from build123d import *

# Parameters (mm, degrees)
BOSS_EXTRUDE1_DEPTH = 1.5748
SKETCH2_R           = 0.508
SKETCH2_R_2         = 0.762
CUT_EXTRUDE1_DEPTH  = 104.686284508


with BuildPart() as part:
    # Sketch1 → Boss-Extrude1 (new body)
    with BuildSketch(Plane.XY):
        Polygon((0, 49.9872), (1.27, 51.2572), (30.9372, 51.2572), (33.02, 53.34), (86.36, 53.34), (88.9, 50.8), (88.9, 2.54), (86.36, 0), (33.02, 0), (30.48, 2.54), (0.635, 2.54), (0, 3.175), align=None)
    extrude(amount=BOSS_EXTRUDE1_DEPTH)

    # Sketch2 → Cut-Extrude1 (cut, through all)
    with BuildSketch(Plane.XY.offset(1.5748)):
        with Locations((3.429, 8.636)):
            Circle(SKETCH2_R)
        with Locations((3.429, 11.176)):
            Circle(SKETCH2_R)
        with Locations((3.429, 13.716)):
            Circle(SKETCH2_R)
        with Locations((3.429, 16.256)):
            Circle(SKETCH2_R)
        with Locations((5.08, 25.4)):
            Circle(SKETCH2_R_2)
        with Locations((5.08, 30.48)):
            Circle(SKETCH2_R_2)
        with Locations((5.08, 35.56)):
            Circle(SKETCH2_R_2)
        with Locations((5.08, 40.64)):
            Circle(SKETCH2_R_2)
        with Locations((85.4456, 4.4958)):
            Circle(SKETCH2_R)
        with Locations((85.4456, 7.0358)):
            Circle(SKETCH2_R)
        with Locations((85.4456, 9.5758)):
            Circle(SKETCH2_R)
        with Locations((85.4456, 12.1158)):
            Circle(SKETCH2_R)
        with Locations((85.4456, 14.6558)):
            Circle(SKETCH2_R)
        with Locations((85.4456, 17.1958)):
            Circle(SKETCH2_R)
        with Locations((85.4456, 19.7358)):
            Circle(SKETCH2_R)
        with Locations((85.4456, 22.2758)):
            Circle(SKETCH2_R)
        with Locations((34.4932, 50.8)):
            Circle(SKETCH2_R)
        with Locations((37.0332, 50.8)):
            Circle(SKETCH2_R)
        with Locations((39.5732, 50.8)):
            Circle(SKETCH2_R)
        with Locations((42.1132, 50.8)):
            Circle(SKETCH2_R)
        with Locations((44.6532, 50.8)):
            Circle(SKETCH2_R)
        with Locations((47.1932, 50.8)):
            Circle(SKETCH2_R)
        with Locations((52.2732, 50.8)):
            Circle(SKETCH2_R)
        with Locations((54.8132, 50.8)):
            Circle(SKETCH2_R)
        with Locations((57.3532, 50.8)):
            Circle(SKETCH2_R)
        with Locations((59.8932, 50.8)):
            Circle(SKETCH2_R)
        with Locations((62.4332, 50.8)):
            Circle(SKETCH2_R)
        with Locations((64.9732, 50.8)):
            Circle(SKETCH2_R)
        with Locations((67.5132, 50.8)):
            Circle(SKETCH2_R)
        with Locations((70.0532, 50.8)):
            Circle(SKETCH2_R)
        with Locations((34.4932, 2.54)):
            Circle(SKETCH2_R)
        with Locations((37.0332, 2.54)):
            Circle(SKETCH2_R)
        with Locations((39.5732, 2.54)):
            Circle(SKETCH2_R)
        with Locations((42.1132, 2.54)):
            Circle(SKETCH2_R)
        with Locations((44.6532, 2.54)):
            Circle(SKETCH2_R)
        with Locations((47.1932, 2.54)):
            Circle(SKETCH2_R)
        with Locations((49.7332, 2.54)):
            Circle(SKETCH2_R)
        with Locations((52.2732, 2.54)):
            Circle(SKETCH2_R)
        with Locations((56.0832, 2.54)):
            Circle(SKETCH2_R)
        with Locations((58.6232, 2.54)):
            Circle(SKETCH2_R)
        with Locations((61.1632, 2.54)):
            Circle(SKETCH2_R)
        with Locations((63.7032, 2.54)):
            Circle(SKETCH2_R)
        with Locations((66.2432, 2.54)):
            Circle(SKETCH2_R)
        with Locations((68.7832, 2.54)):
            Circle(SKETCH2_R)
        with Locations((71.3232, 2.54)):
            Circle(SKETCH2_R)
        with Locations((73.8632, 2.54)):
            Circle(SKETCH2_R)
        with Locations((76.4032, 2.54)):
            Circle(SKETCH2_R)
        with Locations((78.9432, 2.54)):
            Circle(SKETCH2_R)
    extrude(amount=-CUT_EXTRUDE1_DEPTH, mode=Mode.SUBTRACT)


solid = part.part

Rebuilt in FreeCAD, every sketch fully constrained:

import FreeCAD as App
import Part
import Sketcher
from FreeCAD import Vector
Q = App.Units.Quantity


def add_polygon(sketch, points):
    """Adds a closed chain of lines whose ends are joined by coincident constraints."""
    first, n = sketch.GeometryCount, len(points)
    for a, b in zip(points, points[1:] + points[:1]):
        sketch.addGeometry(Part.LineSegment(App.Vector(*a, 0), App.Vector(*b, 0)), False)
    for i in range(n):
        sketch.addConstraint(Sketcher.Constraint("Coincident", first + i, 2, first + (i + 1) % n, 1))

doc = App.newDocument("Part")
body = doc.addObject("PartDesign::Body", "Body")

# Sketch on XY plane
sketch1 = body.newObject("Sketcher::SketchObject", "Sketch")
sketch1.AttachmentSupport = (doc.getObject("XY_Plane"), [""])
sketch1.MapMode = "FlatFace"
add_polygon(sketch1, [(1.3, 51.3), (0, 50), (0, 3.2), (0.6, 2.5), (30.5, 2.5), (33, 0), (86.4, 0), (88.9, 2.5), (88.9, 50.8), (86.4, 53.3), (33, 53.3), (30.9, 51.3)])  # lines 0-11
sketch1.addConstraint(Sketcher.Constraint("Vertical", 1))
sketch1.addConstraint(Sketcher.Constraint("Horizontal", 3))
sketch1.addConstraint(Sketcher.Constraint("Horizontal", 5))
sketch1.addConstraint(Sketcher.Constraint("Vertical", 7))
sketch1.addConstraint(Sketcher.Constraint("Horizontal", 9))
sketch1.addConstraint(Sketcher.Constraint("Horizontal", 11))
sketch1.addConstraint(Sketcher.Constraint("PointOnObject", 0, 2, -2))
sketch1.addConstraint(Sketcher.Constraint("PointOnObject", 4, 2, -1))
sketch1.addConstraint(Sketcher.Constraint("Perpendicular", 0, 2))
sketch1.addConstraint(Sketcher.Constraint("Parallel", 2, 4))
sketch1.addConstraint(Sketcher.Constraint("Perpendicular", 4, 6))
sketch1.addConstraint(Sketcher.Constraint("Perpendicular", 6, 8))
sketch1.addConstraint(Sketcher.Constraint("Perpendicular", 8, 10))
sketch1.addConstraint(Sketcher.Constraint("Horizontal", 3, 2, 6, 2))
sketch1.addConstraint(Sketcher.Constraint("Vertical", 5, 2, 8, 2))
sketch1.addConstraint(Sketcher.Constraint("Vertical", 4, 2, 9, 2))
sketch1.addConstraint(Sketcher.Constraint("Equal", 4, 6))
sketch1.addConstraint(Sketcher.Constraint("DistanceX", 5, 1, 5, 2, Q("2.1 in")))
sketch1.addConstraint(Sketcher.Constraint("DistanceY", 7, 1, 7, 2, Q("1.9 in")))
sketch1.addConstraint(Sketcher.Constraint("DistanceY", -1, 1, 7, 2, Q("2 in")))
sketch1.addConstraint(Sketcher.Constraint("DistanceX", -1, 1, 3, 2, Q("1.2 in")))
sketch1.addConstraint(Sketcher.Constraint("DistanceX", 3, 1, 3, 2, Q("1.175 in")))
sketch1.addConstraint(Sketcher.Constraint("DistanceX", 11, 2, 11, 1, Q("1.168 in")))
sketch1.addConstraint(Sketcher.Constraint("DistanceX", -1, 1, 11, 2, Q("0.05 in")))
pad1 = body.newObject("PartDesign::Pad", "Pad")
pad1.Profile = sketch1
pad1.Length = Q("0.062 in")

# Sketch on XY plane
sketch2 = body.newObject("Sketcher::SketchObject", "Sketch001")
sketch2.AttachmentSupport = (doc.getObject("XY_Plane"), [""])
sketch2.MapMode = "FlatFace"
sketch2.AttachmentOffset = App.Placement(Vector(0, 0, 0.062 * 25.4), App.Rotation())
sketch2.addGeometry(Part.Circle(Vector(3.4, 8.6, 0), Vector(0, 0, 1), 0.5), False)
sketch2.addGeometry(Part.Circle(Vector(3.4, 11.2, 0), Vector(0, 0, 1), 0.5), False)
sketch2.addGeometry(Part.Circle(Vector(3.4, 13.7, 0), Vector(0, 0, 1), 0.5), False)
sketch2.addGeometry(Part.Circle(Vector(3.4, 16.3, 0), Vector(0, 0, 1), 0.5), False)
sketch2.addGeometry(Part.Circle(Vector(5.1, 25.4, 0), Vector(0, 0, 1), 0.8), False)
sketch2.addGeometry(Part.Circle(Vector(5.1, 30.5, 0), Vector(0, 0, 1), 0.8), False)
sketch2.addGeometry(Part.Circle(Vector(5.1, 35.6, 0), Vector(0, 0, 1), 0.8), False)
sketch2.addGeometry(Part.Circle(Vector(5.1, 40.6, 0), Vector(0, 0, 1), 0.8), False)
sketch2.addGeometry(Part.Circle(Vector(85.4, 4.5, 0), Vector(0, 0, 1), 0.5), False)
sketch2.addGeometry(Part.Circle(Vector(85.4, 7, 0), Vector(0, 0, 1), 0.5), False)
sketch2.addGeometry(Part.Circle(Vector(85.4, 9.6, 0), Vector(0, 0, 1), 0.5), False)
sketch2.addGeometry(Part.Circle(Vector(85.4, 12.1, 0), Vector(0, 0, 1), 0.5), False)
sketch2.addGeometry(Part.Circle(Vector(85.4, 14.7, 0), Vector(0, 0, 1), 0.5), False)
sketch2.addGeometry(Part.Circle(Vector(85.4, 17.2, 0), Vector(0, 0, 1), 0.5), False)
sketch2.addGeometry(Part.Circle(Vector(85.4, 19.7, 0), Vector(0, 0, 1), 0.5), False)
sketch2.addGeometry(Part.Circle(Vector(85.4, 22.3, 0), Vector(0, 0, 1), 0.5), False)
sketch2.addGeometry(Part.Circle(Vector(34.5, 50.8, 0), Vector(0, 0, 1), 0.5), False)
sketch2.addGeometry(Part.Circle(Vector(37, 50.8, 0), Vector(0, 0, 1), 0.5), False)
sketch2.addGeometry(Part.Circle(Vector(39.6, 50.8, 0), Vector(0, 0, 1), 0.5), False)
sketch2.addGeometry(Part.Circle(Vector(42.1, 50.8, 0), Vector(0, 0, 1), 0.5), False)
sketch2.addGeometry(Part.Circle(Vector(44.7, 50.8, 0), Vector(0, 0, 1), 0.5), False)
sketch2.addGeometry(Part.Circle(Vector(47.2, 50.8, 0), Vector(0, 0, 1), 0.5), False)
sketch2.addGeometry(Part.Circle(Vector(52.3, 50.8, 0), Vector(0, 0, 1), 0.5), False)
sketch2.addGeometry(Part.Circle(Vector(54.8, 50.8, 0), Vector(0, 0, 1), 0.5), False)
sketch2.addGeometry(Part.Circle(Vector(57.4, 50.8, 0), Vector(0, 0, 1), 0.5), False)
sketch2.addGeometry(Part.Circle(Vector(59.9, 50.8, 0), Vector(0, 0, 1), 0.5), False)
sketch2.addGeometry(Part.Circle(Vector(62.4, 50.8, 0), Vector(0, 0, 1), 0.5), False)
sketch2.addGeometry(Part.Circle(Vector(65, 50.8, 0), Vector(0, 0, 1), 0.5), False)
sketch2.addGeometry(Part.Circle(Vector(67.5, 50.8, 0), Vector(0, 0, 1), 0.5), False)
sketch2.addGeometry(Part.Circle(Vector(70.1, 50.8, 0), Vector(0, 0, 1), 0.5), False)
sketch2.addGeometry(Part.Circle(Vector(34.5, 2.5, 0), Vector(0, 0, 1), 0.5), False)
sketch2.addGeometry(Part.Circle(Vector(37, 2.5, 0), Vector(0, 0, 1), 0.5), False)
sketch2.addGeometry(Part.Circle(Vector(39.6, 2.5, 0), Vector(0, 0, 1), 0.5), False)
sketch2.addGeometry(Part.Circle(Vector(42.1, 2.5, 0), Vector(0, 0, 1), 0.5), False)
sketch2.addGeometry(Part.Circle(Vector(44.7, 2.5, 0), Vector(0, 0, 1), 0.5), False)
sketch2.addGeometry(Part.Circle(Vector(47.2, 2.5, 0), Vector(0, 0, 1), 0.5), False)
sketch2.addGeometry(Part.Circle(Vector(49.7, 2.5, 0), Vector(0, 0, 1), 0.5), False)
sketch2.addGeometry(Part.Circle(Vector(52.3, 2.5, 0), Vector(0, 0, 1), 0.5), False)
sketch2.addGeometry(Part.Circle(Vector(56.1, 2.5, 0), Vector(0, 0, 1), 0.5), False)
sketch2.addGeometry(Part.Circle(Vector(58.6, 2.5, 0), Vector(0, 0, 1), 0.5), False)
sketch2.addGeometry(Part.Circle(Vector(61.2, 2.5, 0), Vector(0, 0, 1), 0.5), False)
sketch2.addGeometry(Part.Circle(Vector(63.7, 2.5, 0), Vector(0, 0, 1), 0.5), False)
sketch2.addGeometry(Part.Circle(Vector(66.2, 2.5, 0), Vector(0, 0, 1), 0.5), False)
sketch2.addGeometry(Part.Circle(Vector(68.8, 2.5, 0), Vector(0, 0, 1), 0.5), False)
sketch2.addGeometry(Part.Circle(Vector(71.3, 2.5, 0), Vector(0, 0, 1), 0.5), False)
sketch2.addGeometry(Part.Circle(Vector(73.9, 2.5, 0), Vector(0, 0, 1), 0.5), False)
sketch2.addGeometry(Part.Circle(Vector(76.4, 2.5, 0), Vector(0, 0, 1), 0.5), False)
sketch2.addGeometry(Part.Circle(Vector(78.9, 2.5, 0), Vector(0, 0, 1), 0.5), False)
sketch2.addConstraint(Sketcher.Constraint("Equal", 0, 1))
sketch2.addConstraint(Sketcher.Constraint("Equal", 1, 2))
sketch2.addConstraint(Sketcher.Constraint("Equal", 2, 3))
sketch2.addConstraint(Sketcher.Constraint("Equal", 4, 5))
sketch2.addConstraint(Sketcher.Constraint("Equal", 5, 6))
sketch2.addConstraint(Sketcher.Constraint("Equal", 6, 7))
sketch2.addConstraint(Sketcher.Constraint("Equal", 3, 8))
sketch2.addConstraint(Sketcher.Constraint("Equal", 8, 9))
sketch2.addConstraint(Sketcher.Constraint("Equal", 9, 10))
sketch2.addConstraint(Sketcher.Constraint("Equal", 10, 11))
sketch2.addConstraint(Sketcher.Constraint("Equal", 11, 12))
sketch2.addConstraint(Sketcher.Constraint("Equal", 12, 13))
sketch2.addConstraint(Sketcher.Constraint("Equal", 13, 14))
sketch2.addConstraint(Sketcher.Constraint("Equal", 14, 15))
sketch2.addConstraint(Sketcher.Constraint("Equal", 15, 16))
sketch2.addConstraint(Sketcher.Constraint("Equal", 16, 17))
sketch2.addConstraint(Sketcher.Constraint("Equal", 17, 18))
sketch2.addConstraint(Sketcher.Constraint("Equal", 18, 19))
sketch2.addConstraint(Sketcher.Constraint("Equal", 19, 20))
sketch2.addConstraint(Sketcher.Constraint("Equal", 20, 21))
sketch2.addConstraint(Sketcher.Constraint("Equal", 21, 22))
sketch2.addConstraint(Sketcher.Constraint("Equal", 22, 23))
sketch2.addConstraint(Sketcher.Constraint("Equal", 23, 24))
sketch2.addConstraint(Sketcher.Constraint("Equal", 24, 25))
sketch2.addConstraint(Sketcher.Constraint("Equal", 25, 26))
sketch2.addConstraint(Sketcher.Constraint("Equal", 26, 27))
sketch2.addConstraint(Sketcher.Constraint("Equal", 27, 28))
sketch2.addConstraint(Sketcher.Constraint("Equal", 28, 29))
sketch2.addConstraint(Sketcher.Constraint("Equal", 29, 30))
sketch2.addConstraint(Sketcher.Constraint("Equal", 30, 31))
sketch2.addConstraint(Sketcher.Constraint("Equal", 31, 32))
sketch2.addConstraint(Sketcher.Constraint("Equal", 32, 33))
sketch2.addConstraint(Sketcher.Constraint("Equal", 33, 34))
sketch2.addConstraint(Sketcher.Constraint("Equal", 34, 35))
sketch2.addConstraint(Sketcher.Constraint("Equal", 35, 36))
sketch2.addConstraint(Sketcher.Constraint("Equal", 36, 37))
sketch2.addConstraint(Sketcher.Constraint("Equal", 37, 38))
sketch2.addConstraint(Sketcher.Constraint("Equal", 38, 39))
sketch2.addConstraint(Sketcher.Constraint("Equal", 39, 40))
sketch2.addConstraint(Sketcher.Constraint("Equal", 40, 41))
sketch2.addConstraint(Sketcher.Constraint("Equal", 41, 42))
sketch2.addConstraint(Sketcher.Constraint("Equal", 42, 43))
sketch2.addConstraint(Sketcher.Constraint("Equal", 43, 44))
sketch2.addConstraint(Sketcher.Constraint("Equal", 44, 45))
sketch2.addConstraint(Sketcher.Constraint("Equal", 45, 46))
sketch2.addConstraint(Sketcher.Constraint("Equal", 46, 47))
sketch2.addConstraint(Sketcher.Constraint("Horizontal", 16, 3, 17, 3))
sketch2.addConstraint(Sketcher.Constraint("Horizontal", 17, 3, 18, 3))
sketch2.addConstraint(Sketcher.Constraint("Horizontal", 18, 3, 19, 3))
sketch2.addConstraint(Sketcher.Constraint("Horizontal", 19, 3, 20, 3))
sketch2.addConstraint(Sketcher.Constraint("Horizontal", 20, 3, 21, 3))
sketch2.addConstraint(Sketcher.Constraint("Horizontal", 21, 3, 22, 3))
sketch2.addConstraint(Sketcher.Constraint("Horizontal", 22, 3, 23, 3))
sketch2.addConstraint(Sketcher.Constraint("Horizontal", 23, 3, 24, 3))
sketch2.addConstraint(Sketcher.Constraint("Horizontal", 24, 3, 25, 3))
sketch2.addConstraint(Sketcher.Constraint("Horizontal", 25, 3, 26, 3))
sketch2.addConstraint(Sketcher.Constraint("Horizontal", 26, 3, 27, 3))
sketch2.addConstraint(Sketcher.Constraint("Horizontal", 27, 3, 28, 3))
sketch2.addConstraint(Sketcher.Constraint("Horizontal", 28, 3, 29, 3))
sketch2.addConstraint(Sketcher.Constraint("Horizontal", 30, 3, 31, 3))
sketch2.addConstraint(Sketcher.Constraint("Horizontal", 31, 3, 32, 3))
sketch2.addConstraint(Sketcher.Constraint("Horizontal", 32, 3, 33, 3))
sketch2.addConstraint(Sketcher.Constraint("Horizontal", 33, 3, 34, 3))
sketch2.addConstraint(Sketcher.Constraint("Horizontal", 34, 3, 35, 3))
sketch2.addConstraint(Sketcher.Constraint("Horizontal", 35, 3, 36, 3))
sketch2.addConstraint(Sketcher.Constraint("Horizontal", 36, 3, 37, 3))
sketch2.addConstraint(Sketcher.Constraint("Horizontal", 37, 3, 38, 3))
sketch2.addConstraint(Sketcher.Constraint("Horizontal", 38, 3, 39, 3))
sketch2.addConstraint(Sketcher.Constraint("Horizontal", 39, 3, 40, 3))
sketch2.addConstraint(Sketcher.Constraint("Horizontal", 40, 3, 41, 3))
sketch2.addConstraint(Sketcher.Constraint("Horizontal", 41, 3, 42, 3))
sketch2.addConstraint(Sketcher.Constraint("Horizontal", 42, 3, 43, 3))
sketch2.addConstraint(Sketcher.Constraint("Horizontal", 43, 3, 44, 3))
sketch2.addConstraint(Sketcher.Constraint("Horizontal", 44, 3, 45, 3))
sketch2.addConstraint(Sketcher.Constraint("Horizontal", 45, 3, 46, 3))
sketch2.addConstraint(Sketcher.Constraint("Horizontal", 46, 3, 47, 3))
sketch2.addConstraint(Sketcher.Constraint("Vertical", 0, 3, 1, 3))
sketch2.addConstraint(Sketcher.Constraint("Vertical", 1, 3, 2, 3))
sketch2.addConstraint(Sketcher.Constraint("Vertical", 2, 3, 3, 3))
sketch2.addConstraint(Sketcher.Constraint("Vertical", 4, 3, 5, 3))
sketch2.addConstraint(Sketcher.Constraint("Vertical", 5, 3, 6, 3))
sketch2.addConstraint(Sketcher.Constraint("Vertical", 6, 3, 7, 3))
sketch2.addConstraint(Sketcher.Constraint("Vertical", 8, 3, 9, 3))
sketch2.addConstraint(Sketcher.Constraint("Vertical", 9, 3, 10, 3))
sketch2.addConstraint(Sketcher.Constraint("Vertical", 10, 3, 11, 3))
sketch2.addConstraint(Sketcher.Constraint("Vertical", 11, 3, 12, 3))
sketch2.addConstraint(Sketcher.Constraint("Vertical", 12, 3, 13, 3))
sketch2.addConstraint(Sketcher.Constraint("Vertical", 13, 3, 14, 3))
sketch2.addConstraint(Sketcher.Constraint("Vertical", 14, 3, 15, 3))
sketch2.addConstraint(Sketcher.Constraint("Vertical", 16, 3, 30, 3))
sketch2.addConstraint(Sketcher.Constraint("Vertical", 17, 3, 31, 3))
sketch2.addConstraint(Sketcher.Constraint("Vertical", 18, 3, 32, 3))
sketch2.addConstraint(Sketcher.Constraint("Vertical", 19, 3, 33, 3))
sketch2.addConstraint(Sketcher.Constraint("Vertical", 20, 3, 34, 3))
sketch2.addConstraint(Sketcher.Constraint("Vertical", 21, 3, 35, 3))
sketch2.addConstraint(Sketcher.Constraint("Vertical", 22, 3, 37, 3))
sketch2.addConstraint(Sketcher.Constraint("Diameter", 0, Q("0.04 in")))
sketch2.addConstraint(Sketcher.Constraint("Diameter", 4, Q("0.06 in")))
sketch2.addConstraint(Sketcher.Constraint("DistanceY", -1, 1, 4, 3, Q("1 in")))
sketch2.addConstraint(Sketcher.Constraint("DistanceY", -1, 1, 16, 3, Q("2 in")))
sketch2.addConstraint(Sketcher.Constraint("DistanceX", -1, 1, 4, 3, Q("0.2 in")))
sketch2.addConstraint(Sketcher.Constraint("DistanceY", -1, 1, 5, 3, Q("1.2 in")))
sketch2.addConstraint(Sketcher.Constraint("DistanceY", -1, 1, 6, 3, Q("1.4 in")))
sketch2.addConstraint(Sketcher.Constraint("DistanceY", -1, 1, 7, 3, Q("1.6 in")))
sketch2.addConstraint(Sketcher.Constraint("DistanceY", -1, 1, 30, 3, Q("0.1 in")))
sketch2.addConstraint(Sketcher.Constraint("DistanceY", 0, 3, 1, 3, Q("0.1 in")))
sketch2.addConstraint(Sketcher.Constraint("DistanceY", 1, 3, 2, 3, Q("0.1 in")))
sketch2.addConstraint(Sketcher.Constraint("DistanceY", 2, 3, 3, 3, Q("0.1 in")))
sketch2.addConstraint(Sketcher.Constraint("DistanceY", 8, 3, 9, 3, Q("0.1 in")))
sketch2.addConstraint(Sketcher.Constraint("DistanceY", 9, 3, 10, 3, Q("0.1 in")))
sketch2.addConstraint(Sketcher.Constraint("DistanceY", 10, 3, 11, 3, Q("0.1 in")))
sketch2.addConstraint(Sketcher.Constraint("DistanceY", 11, 3, 12, 3, Q("0.1 in")))
sketch2.addConstraint(Sketcher.Constraint("DistanceY", 12, 3, 13, 3, Q("0.1 in")))
sketch2.addConstraint(Sketcher.Constraint("DistanceY", 13, 3, 14, 3, Q("0.1 in")))
sketch2.addConstraint(Sketcher.Constraint("DistanceY", 14, 3, 15, 3, Q("0.1 in")))
sketch2.addConstraint(Sketcher.Constraint("DistanceX", 16, 3, 17, 3, Q("0.1 in")))
sketch2.addConstraint(Sketcher.Constraint("DistanceX", 17, 3, 18, 3, Q("0.1 in")))
sketch2.addConstraint(Sketcher.Constraint("DistanceX", 18, 3, 19, 3, Q("0.1 in")))
sketch2.addConstraint(Sketcher.Constraint("DistanceX", 19, 3, 20, 3, Q("0.1 in")))
sketch2.addConstraint(Sketcher.Constraint("DistanceX", 20, 3, 21, 3, Q("0.1 in")))
sketch2.addConstraint(Sketcher.Constraint("DistanceX", 21, 3, 22, 3, Q("0.2 in")))
sketch2.addConstraint(Sketcher.Constraint("DistanceX", 22, 3, 23, 3, Q("0.1 in")))
sketch2.addConstraint(Sketcher.Constraint("DistanceX", 23, 3, 24, 3, Q("0.1 in")))
sketch2.addConstraint(Sketcher.Constraint("DistanceX", 24, 3, 25, 3, Q("0.1 in")))
sketch2.addConstraint(Sketcher.Constraint("DistanceX", 25, 3, 26, 3, Q("0.1 in")))
sketch2.addConstraint(Sketcher.Constraint("DistanceX", 26, 3, 27, 3, Q("0.1 in")))
sketch2.addConstraint(Sketcher.Constraint("DistanceX", 27, 3, 28, 3, Q("0.1 in")))
sketch2.addConstraint(Sketcher.Constraint("DistanceX", 28, 3, 29, 3, Q("0.1 in")))
sketch2.addConstraint(Sketcher.Constraint("DistanceX", 35, 3, 36, 3, Q("0.1 in")))
sketch2.addConstraint(Sketcher.Constraint("DistanceX", 38, 3, 39, 3, Q("0.1 in")))
sketch2.addConstraint(Sketcher.Constraint("DistanceX", 39, 3, 40, 3, Q("0.1 in")))
sketch2.addConstraint(Sketcher.Constraint("DistanceX", 40, 3, 41, 3, Q("0.1 in")))
sketch2.addConstraint(Sketcher.Constraint("DistanceX", 41, 3, 42, 3, Q("0.1 in")))
sketch2.addConstraint(Sketcher.Constraint("DistanceX", 42, 3, 43, 3, Q("0.1 in")))
sketch2.addConstraint(Sketcher.Constraint("DistanceX", 43, 3, 44, 3, Q("0.1 in")))
sketch2.addConstraint(Sketcher.Constraint("DistanceX", 44, 3, 45, 3, Q("0.1 in")))
sketch2.addConstraint(Sketcher.Constraint("DistanceX", 45, 3, 46, 3, Q("0.1 in")))
sketch2.addConstraint(Sketcher.Constraint("DistanceX", 46, 3, 47, 3, Q("0.1 in")))
sketch2.addConstraint(Sketcher.Constraint("DistanceY", -1, 1, 0, 3, Q("0.34 in")))
sketch2.addConstraint(Sketcher.Constraint("DistanceX", 37, 3, 38, 3, Q("0.15 in")))
sketch2.addConstraint(Sketcher.Constraint("DistanceX", -1, 1, 0, 3, Q("0.135 in")))
sketch2.addConstraint(Sketcher.Constraint("DistanceX", -1, 1, 8, 3, Q("3.364 in")))
sketch2.addConstraint(Sketcher.Constraint("DistanceY", -1, 1, 8, 3, Q("0.177 in")))
sketch2.addConstraint(Sketcher.Constraint("DistanceX", -1, 1, 16, 3, Q("1.358 in")))
pocket1 = body.newObject("PartDesign::Pocket", "Pocket")
pocket1.Profile = sketch2
pocket1.Type = "ThroughAll"

doc.recompute()
